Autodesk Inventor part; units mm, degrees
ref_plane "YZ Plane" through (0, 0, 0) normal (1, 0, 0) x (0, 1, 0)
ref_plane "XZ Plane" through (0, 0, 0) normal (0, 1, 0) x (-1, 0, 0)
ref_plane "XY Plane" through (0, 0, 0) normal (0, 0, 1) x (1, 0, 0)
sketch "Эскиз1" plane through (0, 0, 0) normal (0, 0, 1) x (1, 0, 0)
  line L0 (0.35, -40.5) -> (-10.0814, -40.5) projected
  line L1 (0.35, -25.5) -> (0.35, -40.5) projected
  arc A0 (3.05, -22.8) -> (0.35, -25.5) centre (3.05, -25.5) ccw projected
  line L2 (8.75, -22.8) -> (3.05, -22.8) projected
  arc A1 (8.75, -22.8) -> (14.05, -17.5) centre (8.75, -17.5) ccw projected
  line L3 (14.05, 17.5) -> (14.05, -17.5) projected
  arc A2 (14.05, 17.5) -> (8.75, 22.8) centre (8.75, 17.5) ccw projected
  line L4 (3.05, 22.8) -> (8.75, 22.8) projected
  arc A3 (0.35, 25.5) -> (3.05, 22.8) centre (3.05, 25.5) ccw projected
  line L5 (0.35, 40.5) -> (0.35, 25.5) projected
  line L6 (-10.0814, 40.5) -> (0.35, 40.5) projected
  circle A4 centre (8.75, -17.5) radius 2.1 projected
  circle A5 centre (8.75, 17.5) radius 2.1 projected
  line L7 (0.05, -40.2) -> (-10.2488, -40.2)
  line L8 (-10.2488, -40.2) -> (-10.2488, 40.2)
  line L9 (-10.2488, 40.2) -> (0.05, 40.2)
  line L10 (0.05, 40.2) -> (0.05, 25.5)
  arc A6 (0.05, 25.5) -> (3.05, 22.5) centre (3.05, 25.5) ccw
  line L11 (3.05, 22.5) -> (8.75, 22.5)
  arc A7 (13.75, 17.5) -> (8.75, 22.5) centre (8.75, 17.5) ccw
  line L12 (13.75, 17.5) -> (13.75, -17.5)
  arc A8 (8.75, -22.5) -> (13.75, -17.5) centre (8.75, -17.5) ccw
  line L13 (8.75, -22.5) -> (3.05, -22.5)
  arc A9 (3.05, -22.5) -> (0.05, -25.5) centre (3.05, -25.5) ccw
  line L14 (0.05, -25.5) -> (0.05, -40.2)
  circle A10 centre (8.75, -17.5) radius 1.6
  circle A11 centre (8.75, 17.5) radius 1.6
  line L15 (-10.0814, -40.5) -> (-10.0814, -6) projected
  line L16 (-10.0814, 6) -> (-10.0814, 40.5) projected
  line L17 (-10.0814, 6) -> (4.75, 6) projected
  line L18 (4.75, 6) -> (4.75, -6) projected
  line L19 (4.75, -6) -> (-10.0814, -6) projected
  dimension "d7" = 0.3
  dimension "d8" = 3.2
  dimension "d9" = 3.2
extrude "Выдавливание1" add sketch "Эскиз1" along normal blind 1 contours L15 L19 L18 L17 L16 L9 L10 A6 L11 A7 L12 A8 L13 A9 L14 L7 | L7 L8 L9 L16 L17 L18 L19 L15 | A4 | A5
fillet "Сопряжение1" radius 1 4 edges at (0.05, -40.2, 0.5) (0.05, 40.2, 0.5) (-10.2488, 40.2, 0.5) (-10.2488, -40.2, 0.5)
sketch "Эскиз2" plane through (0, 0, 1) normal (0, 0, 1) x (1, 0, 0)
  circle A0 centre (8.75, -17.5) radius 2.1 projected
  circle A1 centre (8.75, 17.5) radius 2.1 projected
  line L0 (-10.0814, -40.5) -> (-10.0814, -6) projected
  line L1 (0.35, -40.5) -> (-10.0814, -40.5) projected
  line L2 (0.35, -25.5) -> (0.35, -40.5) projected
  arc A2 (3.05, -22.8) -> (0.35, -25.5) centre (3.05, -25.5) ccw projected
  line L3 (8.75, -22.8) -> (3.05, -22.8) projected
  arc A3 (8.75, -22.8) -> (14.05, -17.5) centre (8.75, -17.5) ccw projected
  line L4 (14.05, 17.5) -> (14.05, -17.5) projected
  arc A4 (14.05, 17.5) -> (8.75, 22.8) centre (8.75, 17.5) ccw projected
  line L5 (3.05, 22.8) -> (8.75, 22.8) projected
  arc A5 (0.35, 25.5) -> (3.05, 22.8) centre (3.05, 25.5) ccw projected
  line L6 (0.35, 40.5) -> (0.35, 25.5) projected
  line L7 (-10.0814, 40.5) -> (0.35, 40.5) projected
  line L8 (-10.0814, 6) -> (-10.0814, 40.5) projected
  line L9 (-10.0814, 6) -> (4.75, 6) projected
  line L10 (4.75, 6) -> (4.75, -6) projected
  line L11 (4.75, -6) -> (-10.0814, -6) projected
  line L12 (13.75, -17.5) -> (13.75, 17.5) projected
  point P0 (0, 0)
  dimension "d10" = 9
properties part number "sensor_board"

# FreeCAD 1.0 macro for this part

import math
import FreeCAD as App
import Part
import Sketcher

V = App.Vector


def edges_at(feature, points):
    """Names of the edges that pass closest to the given points."""
    edges = feature.Shape.Edges
    near = lambda p: min(range(len(edges)), key=lambda i: edges[i].distToShape(Part.Vertex(*p))[0])
    return sorted({f"Edge{near(p) + 1}" for p in points})

doc = App.newDocument("Part")
params = doc.addObject("Spreadsheet::Sheet", "Params")
for row, (alias, value) in enumerate([
    ("sketch1_diameter", "3.2 mm"),
    ("sketch1_radius", "3 mm"),
    ("sketch1_radius2", "5 mm"),
    ("sketch1_height", "35 mm"),
    ("sketch1_width", "5.7 mm"),
    ("pad1_length", "1 mm"),
    ("fillet_radius", "1 mm"),
], start=1):
    params.set(f"A{row}", alias)
    params.set(f"B{row}", "=" + value)
    params.setAlias(f"B{row}", alias)

body = doc.addObject("PartDesign::Body", "Body")

# Sketch on XY plane
sketch1 = doc.addObject("Sketcher::SketchObject", "Sketch")
body.addObject(sketch1)
sketch1.AttachmentSupport = (doc.XY_Plane, [""])
sketch1.MapMode = "FlatFace"
sketch1.addGeometry(Part.LineSegment(V(0.1, 40.2, 0), V(-10.2, 40.2, 0)), False)
sketch1.addGeometry(Part.LineSegment(V(-10.2, 40.2, 0), V(-10.2, -40.2, 0)), False)
sketch1.addGeometry(Part.LineSegment(V(-10.2, -40.2, 0), V(0.1, -40.2, 0)), False)
sketch1.addGeometry(Part.LineSegment(V(0.1, -40.2, 0), V(0.1, -25.5, 0)), False)
sketch1.addGeometry(Part.ArcOfCircle(Part.Circle(V(3, -25.5, 0), V(0, 0, 1), 3), math.radians(90), math.radians(180)), False)
sketch1.addGeometry(Part.LineSegment(V(3, -22.5, 0), V(8.8, -22.5, 0)), False)
sketch1.addGeometry(Part.ArcOfCircle(Part.Circle(V(8.8, -17.5, 0), V(0, 0, 1), 5), math.radians(-90), math.radians(0)), False)
sketch1.addGeometry(Part.LineSegment(V(13.8, -17.5, 0), V(13.8, 17.5, 0)), False)
sketch1.addGeometry(Part.ArcOfCircle(Part.Circle(V(8.8, 17.5, 0), V(0, 0, 1), 5), math.radians(0), math.radians(90)), False)
sketch1.addGeometry(Part.LineSegment(V(8.8, 22.5, 0), V(3, 22.5, 0)), False)
sketch1.addGeometry(Part.ArcOfCircle(Part.Circle(V(3, 25.5, 0), V(0, 0, 1), 3), math.radians(180), math.radians(270)), False)
sketch1.addGeometry(Part.LineSegment(V(0.1, 25.5, 0), V(0.1, 40.2, 0)), False)
sketch1.addGeometry(Part.Circle(V(8.8, -17.5, 0), V(0, 0, 1), 1.6), False)
sketch1.addGeometry(Part.Circle(V(8.8, 17.5, 0), V(0, 0, 1), 1.6), False)
sketch1.addConstraint(Sketcher.Constraint("Coincident", 0, 2, 1, 1))
sketch1.addConstraint(Sketcher.Constraint("Coincident", 1, 2, 2, 1))
sketch1.addConstraint(Sketcher.Constraint("Coincident", 2, 2, 3, 1))
sketch1.addConstraint(Sketcher.Constraint("Tangent", 3, 2, 4, 2))
sketch1.addConstraint(Sketcher.Constraint("Tangent", 4, 1, 5, 1))
sketch1.addConstraint(Sketcher.Constraint("Tangent", 5, 2, 6, 1))
sketch1.addConstraint(Sketcher.Constraint("Tangent", 6, 2, 7, 1))
sketch1.addConstraint(Sketcher.Constraint("Tangent", 7, 2, 8, 1))
sketch1.addConstraint(Sketcher.Constraint("Tangent", 8, 2, 9, 1))
sketch1.addConstraint(Sketcher.Constraint("Tangent", 9, 2, 10, 2))
sketch1.addConstraint(Sketcher.Constraint("Tangent", 10, 1, 11, 1))
sketch1.addConstraint(Sketcher.Constraint("Coincident", 11, 2, 0, 1))
sketch1.addConstraint(Sketcher.Constraint("Horizontal", 0))
sketch1.addConstraint(Sketcher.Constraint("Vertical", 1))
sketch1.addConstraint(Sketcher.Constraint("Horizontal", 2))
sketch1.addConstraint(Sketcher.Constraint("Vertical", 3))
sketch1.addConstraint(Sketcher.Constraint("Horizontal", 5))
sketch1.addConstraint(Sketcher.Constraint("Vertical", 7))
sketch1.addConstraint(Sketcher.Constraint("Horizontal", 9))
sketch1.addConstraint(Sketcher.Constraint("Vertical", 11))
sketch1.addConstraint(Sketcher.Constraint("Coincident", 12, 3, 6, 3))
sketch1.addConstraint(Sketcher.Constraint("Coincident", 13, 3, 8, 3))
sketch1.addConstraint(Sketcher.Constraint("Equal", 6, 8))
sketch1.addConstraint(Sketcher.Constraint("Equal", 4, 10))
sketch1.addConstraint(Sketcher.Constraint("Equal", 12, 13))
sketch1.addConstraint(Sketcher.Constraint("Symmetric", 4, 3, 10, 3, -1))
sketch1.addConstraint(Sketcher.Constraint("Equal", 3, 11))
sketch1.addConstraint(Sketcher.Constraint("Diameter", 12, 3.2))
sketch1.addConstraint(Sketcher.Constraint("Radius", 4, 3.0))
sketch1.addConstraint(Sketcher.Constraint("Radius", 6, 5.0))
sketch1.addConstraint(Sketcher.Constraint("DistanceY", 7, 1, 7, 2, 35.0))
sketch1.addConstraint(Sketcher.Constraint("DistanceX", 5, 1, 5, 2, 5.7))
sketch1.addConstraint(Sketcher.Constraint("DistanceY", 1, 2, 1, 1, 80.4))
sketch1.addConstraint(Sketcher.Constraint("DistanceX", -1, 1, 4, 3, 3.05))
sketch1.addConstraint(Sketcher.Constraint("DistanceX", 0, 2, 0, 1, 10.2988))
sketch1.setExpression("Constraints[27]", "Params.sketch1_diameter")
sketch1.setExpression("Constraints[28]", "Params.sketch1_radius")
sketch1.setExpression("Constraints[29]", "Params.sketch1_radius2")
sketch1.setExpression("Constraints[30]", "Params.sketch1_height")
sketch1.setExpression("Constraints[31]", "Params.sketch1_width")
pad1 = doc.addObject("PartDesign::Pad", "Pad")
body.addObject(pad1)
pad1.Profile = sketch1
pad1.setExpression("Length", "Params.pad1_length")
doc.recompute()

fillet = doc.addObject("PartDesign::Fillet", "Fillet")
body.addObject(fillet)
fillet.Base = (pad1, edges_at(pad1, [
    (0.05, -40.2, 0.5),
    (0.05, 40.2, 0.5),
    (-10.249, 40.2, 0.5),
    (-10.249, -40.2, 0.5),
]))
fillet.setExpression("Radius", "Params.fillet_radius")

doc.recompute()
